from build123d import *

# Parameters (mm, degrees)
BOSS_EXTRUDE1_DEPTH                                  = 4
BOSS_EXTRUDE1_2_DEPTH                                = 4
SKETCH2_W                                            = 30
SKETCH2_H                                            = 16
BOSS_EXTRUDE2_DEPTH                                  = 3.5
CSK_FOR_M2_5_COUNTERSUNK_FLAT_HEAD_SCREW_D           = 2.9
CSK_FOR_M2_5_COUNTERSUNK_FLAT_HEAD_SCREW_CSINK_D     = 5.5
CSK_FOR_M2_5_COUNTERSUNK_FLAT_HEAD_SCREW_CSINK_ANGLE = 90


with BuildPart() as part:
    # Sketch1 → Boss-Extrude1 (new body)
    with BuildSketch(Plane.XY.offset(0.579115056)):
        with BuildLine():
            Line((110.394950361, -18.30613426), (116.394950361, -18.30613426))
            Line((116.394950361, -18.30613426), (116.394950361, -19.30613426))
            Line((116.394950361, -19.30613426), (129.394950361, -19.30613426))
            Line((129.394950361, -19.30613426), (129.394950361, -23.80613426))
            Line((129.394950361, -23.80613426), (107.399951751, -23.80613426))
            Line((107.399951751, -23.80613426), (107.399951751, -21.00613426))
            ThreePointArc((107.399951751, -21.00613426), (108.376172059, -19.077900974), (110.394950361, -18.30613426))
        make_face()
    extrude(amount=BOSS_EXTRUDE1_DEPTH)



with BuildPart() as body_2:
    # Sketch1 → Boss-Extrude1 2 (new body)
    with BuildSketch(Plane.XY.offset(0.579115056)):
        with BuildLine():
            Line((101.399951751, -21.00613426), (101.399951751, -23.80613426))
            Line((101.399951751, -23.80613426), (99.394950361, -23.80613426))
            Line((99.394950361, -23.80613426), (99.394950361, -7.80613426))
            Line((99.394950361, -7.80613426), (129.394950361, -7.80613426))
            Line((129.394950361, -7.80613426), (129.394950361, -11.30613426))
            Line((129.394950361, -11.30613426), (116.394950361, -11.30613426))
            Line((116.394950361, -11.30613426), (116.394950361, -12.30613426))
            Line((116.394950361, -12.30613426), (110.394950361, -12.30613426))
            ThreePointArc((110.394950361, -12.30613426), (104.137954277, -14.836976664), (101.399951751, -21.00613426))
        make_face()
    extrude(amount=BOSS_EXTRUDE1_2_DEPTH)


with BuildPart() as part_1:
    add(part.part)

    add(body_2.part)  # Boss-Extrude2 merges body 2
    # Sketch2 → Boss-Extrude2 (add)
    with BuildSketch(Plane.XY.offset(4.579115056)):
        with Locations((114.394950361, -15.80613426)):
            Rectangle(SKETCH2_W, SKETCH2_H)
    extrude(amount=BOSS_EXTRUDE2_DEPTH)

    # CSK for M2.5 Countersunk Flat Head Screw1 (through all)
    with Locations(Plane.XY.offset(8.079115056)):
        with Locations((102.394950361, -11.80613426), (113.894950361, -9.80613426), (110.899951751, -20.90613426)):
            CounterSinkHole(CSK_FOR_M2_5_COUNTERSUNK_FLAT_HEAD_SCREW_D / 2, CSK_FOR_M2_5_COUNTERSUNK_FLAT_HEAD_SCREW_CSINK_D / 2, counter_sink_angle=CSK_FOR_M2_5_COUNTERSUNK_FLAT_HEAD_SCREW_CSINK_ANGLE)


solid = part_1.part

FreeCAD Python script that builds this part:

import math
import FreeCAD as App
import Part
import Sketcher
Q = App.Units.Quantity

doc = App.newDocument("Part")
body = doc.addObject("PartDesign::Body", "Body")

# Sketch on XY plane
sketch1 = doc.addObject("Sketcher::SketchObject", "Sketch")
body.addObject(sketch1)
sketch1.AttachmentSupport = (doc.XY_Plane, [""])
sketch1.MapMode = "FlatFace"
sketch1.AttachmentOffset = App.Placement(App.Vector(0, 0, 0.579115), App.Rotation())
sketch1.addGeometry(Part.LineSegment(App.Vector(116.4, -18.3, 0), App.Vector(110.4, -18.3, 0)), False)
sketch1.addGeometry(Part.ArcOfCircle(Part.Circle(App.Vector(110.4, -21.3, 0), App.Vector(0, 0, 1), 3), math.radians(90), math.radians(174)), False)
sketch1.addGeometry(Part.LineSegment(App.Vector(107.4, -21, 0), App.Vector(107.4, -23.8, 0)), False)
sketch1.addGeometry(Part.LineSegment(App.Vector(107.4, -23.8, 0), App.Vector(129.4, -23.8, 0)), False)
sketch1.addGeometry(Part.LineSegment(App.Vector(129.4, -23.8, 0), App.Vector(129.4, -19.3, 0)), False)
sketch1.addGeometry(Part.LineSegment(App.Vector(129.4, -19.3, 0), App.Vector(116.4, -19.3, 0)), False)
sketch1.addGeometry(Part.LineSegment(App.Vector(116.4, -19.3, 0), App.Vector(116.4, -18.3, 0)), False)
sketch1.addConstraint(Sketcher.Constraint("Coincident", 0, 2, 1, 1))
sketch1.addConstraint(Sketcher.Constraint("Coincident", 1, 2, 2, 1))
sketch1.addConstraint(Sketcher.Constraint("Coincident", 2, 2, 3, 1))
sketch1.addConstraint(Sketcher.Constraint("Coincident", 3, 2, 4, 1))
sketch1.addConstraint(Sketcher.Constraint("Coincident", 4, 2, 5, 1))
sketch1.addConstraint(Sketcher.Constraint("Coincident", 5, 2, 6, 1))
sketch1.addConstraint(Sketcher.Constraint("Coincident", 6, 2, 0, 1))
sketch1.addConstraint(Sketcher.Constraint("Horizontal", 0))
sketch1.addConstraint(Sketcher.Constraint("Vertical", 2))
sketch1.addConstraint(Sketcher.Constraint("Horizontal", 3))
sketch1.addConstraint(Sketcher.Constraint("Vertical", 4))
sketch1.addConstraint(Sketcher.Constraint("Horizontal", 5))
sketch1.addConstraint(Sketcher.Constraint("Vertical", 6))
sketch1.addConstraint(Sketcher.Constraint("Radius", 1, Q("3 mm")))
sketch1.addConstraint(Sketcher.Constraint("DistanceX", 0, 2, 0, 1, Q("6 mm")))
sketch1.addConstraint(Sketcher.Constraint("DistanceX", 5, 2, 5, 1, Q("13 mm")))
sketch1.addConstraint(Sketcher.Constraint("DistanceY", 6, 1, 6, 2, Q("1 mm")))
sketch1.addConstraint(Sketcher.Constraint("DistanceY", 2, 2, 2, 1, Q("2.8 mm")))
sketch1.addConstraint(Sketcher.Constraint("DistanceY", 4, 1, 4, 2, Q("4.5 mm")))
sketch1.addConstraint(Sketcher.Constraint("DistanceX", 3, 1, 3, 2, Q("21.994999 mm")))
sketch1.addConstraint(Sketcher.Constraint("DistanceX", -1, 1, 0, 2, Q("110.39495 mm")))
sketch1.addConstraint(Sketcher.Constraint("DistanceY", 1, 3, -1, 1, Q("21.306117 mm")))
pad1 = doc.addObject("PartDesign::Pad", "Pad")
body.addObject(pad1)
pad1.Profile = sketch1
pad1.Length = 4
body2 = doc.addObject("PartDesign::Body", "Body001")

# Sketch on XY plane
sketch2 = doc.addObject("Sketcher::SketchObject", "Sketch001")
body2.addObject(sketch2)
sketch2.AttachmentSupport = (doc.getObject("XY_Plane001"), [""])
sketch2.MapMode = "FlatFace"
sketch2.AttachmentOffset = App.Placement(App.Vector(0, 0, 0.579115), App.Rotation())
sketch2.addGeometry(Part.LineSegment(App.Vector(101.4, -23.8, 0), App.Vector(101.4, -21, 0)), False)
sketch2.addGeometry(Part.ArcOfCircle(Part.Circle(App.Vector(110.4, -21.3, 0), App.Vector(0, 0, 1), 9), math.radians(90), math.radians(178)), False)
sketch2.addGeometry(Part.LineSegment(App.Vector(110.4, -12.3, 0), App.Vector(116.4, -12.3, 0)), False)
sketch2.addGeometry(Part.LineSegment(App.Vector(116.4, -12.3, 0), App.Vector(116.4, -11.3, 0)), False)
sketch2.addGeometry(Part.LineSegment(App.Vector(116.4, -11.3, 0), App.Vector(129.4, -11.3, 0)), False)
sketch2.addGeometry(Part.LineSegment(App.Vector(129.4, -11.3, 0), App.Vector(129.4, -7.8, 0)), False)
sketch2.addGeometry(Part.LineSegment(App.Vector(129.4, -7.8, 0), App.Vector(99.4, -7.8, 0)), False)
sketch2.addGeometry(Part.LineSegment(App.Vector(99.4, -7.8, 0), App.Vector(99.4, -23.8, 0)), False)
sketch2.addGeometry(Part.LineSegment(App.Vector(99.4, -23.8, 0), App.Vector(101.4, -23.8, 0)), False)
sketch2.addConstraint(Sketcher.Constraint("Coincident", 0, 2, 1, 2))
sketch2.addConstraint(Sketcher.Constraint("Tangent", 1, 1, 2, 1))
sketch2.addConstraint(Sketcher.Constraint("Coincident", 2, 2, 3, 1))
sketch2.addConstraint(Sketcher.Constraint("Coincident", 3, 2, 4, 1))
sketch2.addConstraint(Sketcher.Constraint("Coincident", 4, 2, 5, 1))
sketch2.addConstraint(Sketcher.Constraint("Coincident", 5, 2, 6, 1))
sketch2.addConstraint(Sketcher.Constraint("Coincident", 6, 2, 7, 1))
sketch2.addConstraint(Sketcher.Constraint("Coincident", 7, 2, 8, 1))
sketch2.addConstraint(Sketcher.Constraint("Coincident", 8, 2, 0, 1))
sketch2.addConstraint(Sketcher.Constraint("Vertical", 0))
sketch2.addConstraint(Sketcher.Constraint("Horizontal", 2))
sketch2.addConstraint(Sketcher.Constraint("Vertical", 3))
sketch2.addConstraint(Sketcher.Constraint("Horizontal", 4))
sketch2.addConstraint(Sketcher.Constraint("Vertical", 5))
sketch2.addConstraint(Sketcher.Constraint("Horizontal", 6))
sketch2.addConstraint(Sketcher.Constraint("Vertical", 7))
sketch2.addConstraint(Sketcher.Constraint("Horizontal", 8))
sketch2.addConstraint(Sketcher.Constraint("Radius", 1, Q("9 mm")))
sketch2.addConstraint(Sketcher.Constraint("DistanceX", 2, 1, 2, 2, Q("6 mm")))
sketch2.addConstraint(Sketcher.Constraint("DistanceX", 4, 1, 4, 2, Q("13 mm")))
sketch2.addConstraint(Sketcher.Constraint("DistanceX", 6, 2, 6, 1, Q("30 mm")))
sketch2.addConstraint(Sketcher.Constraint("DistanceY", 3, 1, 3, 2, Q("1 mm")))
sketch2.addConstraint(Sketcher.Constraint("DistanceY", 7, 2, 7, 1, Q("16 mm")))
sketch2.addConstraint(Sketcher.Constraint("DistanceY", 0, 1, 0, 2, Q("2.8 mm")))
sketch2.addConstraint(Sketcher.Constraint("DistanceY", 5, 1, 5, 2, Q("3.5 mm")))
sketch2.addConstraint(Sketcher.Constraint("DistanceX", -1, 1, 1, 3, Q("110.39495 mm")))
sketch2.addConstraint(Sketcher.Constraint("DistanceY", 1, 3, -1, 1, Q("21.306134 mm")))
pad2 = doc.addObject("PartDesign::Pad", "Pad001")
body2.addObject(pad2)
pad2.Profile = sketch2
pad2.Length = 4
body.AllowCompound = True
doc.recompute()

boolean = doc.addObject("PartDesign::Boolean", "Boolean")
body.addObject(boolean)
boolean.Type = "Fuse"
boolean.addObjects([body2])

# Sketch on XY plane
sketch3 = doc.addObject("Sketcher::SketchObject", "Sketch002")
body.addObject(sketch3)
sketch3.AttachmentSupport = (doc.XY_Plane, [""])
sketch3.MapMode = "FlatFace"
sketch3.AttachmentOffset = App.Placement(App.Vector(0, 0, 4.579115), App.Rotation())
sketch3.addGeometry(Part.LineSegment(App.Vector(99, -8, 0), App.Vector(99, -24, 0)), False)
sketch3.addGeometry(Part.LineSegment(App.Vector(99, -24, 0), App.Vector(129, -24, 0)), False)
sketch3.addGeometry(Part.LineSegment(App.Vector(129, -24, 0), App.Vector(129, -8, 0)), False)
sketch3.addGeometry(Part.LineSegment(App.Vector(129, -8, 0), App.Vector(99, -8, 0)), False)
sketch3.addConstraint(Sketcher.Constraint("Coincident", 0, 2, 1, 1))
sketch3.addConstraint(Sketcher.Constraint("Coincident", 1, 2, 2, 1))
sketch3.addConstraint(Sketcher.Constraint("Coincident", 2, 2, 3, 1))
sketch3.addConstraint(Sketcher.Constraint("Coincident", 3, 2, 0, 1))
sketch3.addConstraint(Sketcher.Constraint("Vertical", 0))
sketch3.addConstraint(Sketcher.Constraint("Horizontal", 1))
sketch3.addConstraint(Sketcher.Constraint("Vertical", 2))
sketch3.addConstraint(Sketcher.Constraint("Horizontal", 3))
sketch3.addConstraint(Sketcher.Constraint("DistanceX", 1, 1, 1, 2, Q("30 mm")))
sketch3.addConstraint(Sketcher.Constraint("DistanceY", 0, 2, 0, 1, Q("16 mm")))
sketch3.addConstraint(Sketcher.Constraint("DistanceX", -1, 1, 0, 2, Q("99.39495 mm")))
sketch3.addConstraint(Sketcher.Constraint("DistanceY", 0, 2, -1, 1, Q("23.806134 mm")))
pad3 = doc.addObject("PartDesign::Pad", "Pad002")
body.addObject(pad3)
pad3.Profile = sketch3
pad3.Length = 3.5

# Sketch on XY plane
sketch4 = doc.addObject("Sketcher::SketchObject", "Sketch003")
body.addObject(sketch4)
sketch4.AttachmentSupport = (doc.XY_Plane, [""])
sketch4.MapMode = "FlatFace"
sketch4.AttachmentOffset = App.Placement(App.Vector(0, 0, 8.079115), App.Rotation())
sketch4.addGeometry(Part.Circle(App.Vector(102.4, -11.8, 0), App.Vector(0, 0, 1), 1.4), False)
sketch4.addGeometry(Part.Circle(App.Vector(113.9, -9.8, 0), App.Vector(0, 0, 1), 1.4), False)
sketch4.addGeometry(Part.Circle(App.Vector(110.9, -20.9, 0), App.Vector(0, 0, 1), 1.4), False)
sketch4.addConstraint(Sketcher.Constraint("Equal", 0, 1))
sketch4.addConstraint(Sketcher.Constraint("Equal", 1, 2))
sketch4.addConstraint(Sketcher.Constraint("Diameter", 0, Q("2.9 mm")))
sketch4.addConstraint(Sketcher.Constraint("DistanceY", 0, 3, 1, 3, Q("2 mm")))
sketch4.addConstraint(Sketcher.Constraint("DistanceX", 0, 3, 1, 3, Q("11.5 mm")))
sketch4.addConstraint(Sketcher.Constraint("DistanceY", 2, 3, 1, 3, Q("11.1 mm")))
sketch4.addConstraint(Sketcher.Constraint("DistanceX", 2, 3, 1, 3, Q("2.994999 mm")))
sketch4.addConstraint(Sketcher.Constraint("DistanceX", -1, 1, 0, 3, Q("102.39495 mm")))
sketch4.addConstraint(Sketcher.Constraint("DistanceY", 0, 3, -1, 1, Q("11.806134 mm")))
doc.recompute()
hole = doc.addObject("PartDesign::Hole", "Hole")
body.addObject(hole)
hole.Profile = sketch4
hole.ThreadType = "None"
hole.Diameter = 2.9
hole.DepthType = "ThroughAll"
hole.HoleCutType = "Countersink"
hole.HoleCutDiameter = 5.5
hole.HoleCutCountersinkAngle = 90

doc.recompute()
